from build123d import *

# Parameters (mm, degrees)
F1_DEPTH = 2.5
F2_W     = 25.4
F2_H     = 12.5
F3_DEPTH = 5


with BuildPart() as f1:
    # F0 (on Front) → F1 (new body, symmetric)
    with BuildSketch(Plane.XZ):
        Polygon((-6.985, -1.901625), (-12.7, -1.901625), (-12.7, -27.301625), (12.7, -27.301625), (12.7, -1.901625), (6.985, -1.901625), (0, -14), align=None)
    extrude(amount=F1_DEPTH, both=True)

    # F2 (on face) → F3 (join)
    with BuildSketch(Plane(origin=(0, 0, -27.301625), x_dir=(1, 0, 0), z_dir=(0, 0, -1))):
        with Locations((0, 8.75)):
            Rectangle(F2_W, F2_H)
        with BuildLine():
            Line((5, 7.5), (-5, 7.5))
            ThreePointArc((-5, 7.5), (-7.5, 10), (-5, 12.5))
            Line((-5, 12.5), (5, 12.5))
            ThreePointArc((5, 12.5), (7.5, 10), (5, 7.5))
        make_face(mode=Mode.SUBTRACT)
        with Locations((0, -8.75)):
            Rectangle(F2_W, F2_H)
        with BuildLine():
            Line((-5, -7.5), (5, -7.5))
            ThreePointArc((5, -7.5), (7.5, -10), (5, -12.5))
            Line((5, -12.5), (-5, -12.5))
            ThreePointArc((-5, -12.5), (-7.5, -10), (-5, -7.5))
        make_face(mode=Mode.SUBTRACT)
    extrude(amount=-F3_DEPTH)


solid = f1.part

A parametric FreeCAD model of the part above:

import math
import FreeCAD as App
import Part
import Sketcher

V = App.Vector
Q = App.Units.Quantity

doc = App.newDocument("Part")
body = doc.addObject("PartDesign::Body", "Body")

sketch1 = body.newObject("Sketcher::SketchObject", "Sketch")
sketch1.AttachmentSupport = (doc.getObject("XZ_Plane"), [""])
sketch1.MapMode = "FlatFace"
sketch1.addGeometry([
    Part.LineSegment(V(-6.985, -1.901625, 0), V(-12.7, -1.901625, 0)),
    Part.LineSegment(V(-12.7, -1.901625, 0), V(-12.7, -27.301625, 0)),
    Part.LineSegment(V(-12.7, -27.301625, 0), V(12.7, -27.301625, 0)),
    Part.LineSegment(V(12.7, -27.301625, 0), V(12.7, -1.901625, 0)),
    Part.LineSegment(V(12.7, -1.901625, 0), V(6.985, -1.901625, 0)),
    Part.LineSegment(V(6.985, -1.901625, 0), V(0, -14, 0)),
    Part.LineSegment(V(0, -14, 0), V(-6.985, -1.901625, 0)),
], False)
sketch1.addConstraint([
    Sketcher.Constraint("Coincident", 0, 2, 1, 1),
    Sketcher.Constraint("Coincident", 1, 2, 2, 1),
    Sketcher.Constraint("Coincident", 2, 2, 3, 1),
    Sketcher.Constraint("Coincident", 3, 2, 4, 1),
    Sketcher.Constraint("Coincident", 4, 2, 5, 1),
    Sketcher.Constraint("Coincident", 5, 2, 6, 1),
    Sketcher.Constraint("Coincident", 6, 2, 0, 1),
    Sketcher.Constraint("Horizontal", 0),
    Sketcher.Constraint("Vertical", 1),
    Sketcher.Constraint("Horizontal", 2),
    Sketcher.Constraint("Vertical", 3),
    Sketcher.Constraint("Horizontal", 4),
    Sketcher.Constraint("Symmetric", 0, 2, 3, 2, -2),
    Sketcher.Constraint("PointOnObject", 5, 2, -2),
    Sketcher.Constraint("Equal", 0, 4),
    Sketcher.Constraint("Equal", 2, 1),
    Sketcher.Constraint("Angle", 5, Q("-120 deg")),
    Sketcher.Constraint("DistanceX", 2, 1, 2, 2, 25.4),
    Sketcher.Constraint("DistanceY", 5, 2, -1, 1, 14.0),
    Sketcher.Constraint("Distance", 5, 13.97),
])
pad1 = body.newObject("PartDesign::Pad", "Pad")
pad1.Profile = sketch1
pad1.Length = 5
pad1.Midplane = True

sketch2 = body.newObject("Sketcher::SketchObject", "Sketch001")
sketch2.AttachmentSupport = (doc.getObject("XY_Plane"), [""])
sketch2.MapMode = "FlatFace"
sketch2.AttachmentOffset = App.Placement(V(0, 0, -27.301625), App.Rotation())
sketch2.addGeometry([
    Part.LineSegment(V(-12.7, -15, 0), V(-12.7, -2.5, 0)),
    Part.LineSegment(V(-12.7, -2.5, 0), V(12.7, -2.5, 0)),
    Part.LineSegment(V(12.7, -2.5, 0), V(12.7, -15, 0)),
    Part.LineSegment(V(12.7, -15, 0), V(-12.7, -15, 0)),
    Part.ArcOfCircle(Part.Circle(V(5, -10, 0), V(0, 0, 1), 2.5), math.radians(-90), math.radians(90)),
    Part.LineSegment(V(5, -7.5, 0), V(-5, -7.5, 0)),
    Part.ArcOfCircle(Part.Circle(V(-5, -10, 0), V(0, 0, 1), 2.5), math.radians(90), math.radians(270)),
    Part.LineSegment(V(-5, -12.5, 0), V(5, -12.5, 0)),
    Part.LineSegment(V(-12.7, 2.5, 0), V(-12.7, 15, 0)),
    Part.LineSegment(V(-12.7, 15, 0), V(12.7, 15, 0)),
    Part.LineSegment(V(12.7, 15, 0), V(12.7, 2.5, 0)),
    Part.LineSegment(V(12.7, 2.5, 0), V(-12.7, 2.5, 0)),
    Part.ArcOfCircle(Part.Circle(V(-5, 10, 0), V(0, 0, 1), 2.5), math.radians(90), math.radians(270)),
    Part.LineSegment(V(-5, 7.5, 0), V(5, 7.5, 0)),
    Part.ArcOfCircle(Part.Circle(V(5, 10, 0), V(0, 0, 1), 2.5), math.radians(-90), math.radians(90)),
    Part.LineSegment(V(5, 12.5, 0), V(-5, 12.5, 0)),
], False)
sketch2.addConstraint([
    Sketcher.Constraint("Coincident", 0, 2, 1, 1),
    Sketcher.Constraint("Coincident", 1, 2, 2, 1),
    Sketcher.Constraint("Coincident", 2, 2, 3, 1),
    Sketcher.Constraint("Coincident", 3, 2, 0, 1),
    Sketcher.Constraint("Tangent", 4, 2, 5, 1),
    Sketcher.Constraint("Tangent", 5, 2, 6, 1),
    Sketcher.Constraint("Tangent", 6, 2, 7, 1),
    Sketcher.Constraint("Tangent", 7, 2, 4, 1),
    Sketcher.Constraint("Coincident", 8, 2, 9, 1),
    Sketcher.Constraint("Coincident", 9, 2, 10, 1),
    Sketcher.Constraint("Coincident", 10, 2, 11, 1),
    Sketcher.Constraint("Coincident", 11, 2, 8, 1),
    Sketcher.Constraint("Tangent", 12, 2, 13, 1),
    Sketcher.Constraint("Tangent", 13, 2, 14, 1),
    Sketcher.Constraint("Tangent", 14, 2, 15, 1),
    Sketcher.Constraint("Tangent", 15, 2, 12, 1),
    Sketcher.Constraint("Vertical", 0),
    Sketcher.Constraint("Horizontal", 1),
    Sketcher.Constraint("Vertical", 2),
    Sketcher.Constraint("Horizontal", 3),
    Sketcher.Constraint("Horizontal", 5),
    Sketcher.Constraint("Horizontal", 7),
    Sketcher.Constraint("Vertical", 8),
    Sketcher.Constraint("Horizontal", 9),
    Sketcher.Constraint("Vertical", 10),
    Sketcher.Constraint("Horizontal", 11),
    Sketcher.Constraint("Horizontal", 13),
    Sketcher.Constraint("Horizontal", 15),
    Sketcher.Constraint("Equal", 6, 12),
    Sketcher.Constraint("Symmetric", 4, 3, 12, 3, -1, 1),
    Sketcher.Constraint("Symmetric", 2, 2, 8, 2, -1, 1),
    Sketcher.Constraint("Symmetric", 0, 2, 10, 2, -1, 1),
    Sketcher.Constraint("Vertical", 6, 3, 12, 3),
    Sketcher.Constraint("Vertical", 4, 3, 14, 3),
    Sketcher.Constraint("Vertical", 3, 2, 8, 2),
    Sketcher.Constraint("Radius", 4, 2.5),
    Sketcher.Constraint("DistanceX", 5, 2, 5, 1, 10.0),
    Sketcher.Constraint("DistanceX", 1, 1, 1, 2, 25.4),
    Sketcher.Constraint("DistanceY", 0, 1, 0, 2, 12.5),
    Sketcher.Constraint("DistanceY", 4, 3, -1, 1, 10.0),
    Sketcher.Constraint("DistanceY", 2, 2, -1, 1, 15.0),
])
pad2 = body.newObject("PartDesign::Pad", "Pad001")
pad2.Profile = sketch2
pad2.Length = 5

doc.recompute()
